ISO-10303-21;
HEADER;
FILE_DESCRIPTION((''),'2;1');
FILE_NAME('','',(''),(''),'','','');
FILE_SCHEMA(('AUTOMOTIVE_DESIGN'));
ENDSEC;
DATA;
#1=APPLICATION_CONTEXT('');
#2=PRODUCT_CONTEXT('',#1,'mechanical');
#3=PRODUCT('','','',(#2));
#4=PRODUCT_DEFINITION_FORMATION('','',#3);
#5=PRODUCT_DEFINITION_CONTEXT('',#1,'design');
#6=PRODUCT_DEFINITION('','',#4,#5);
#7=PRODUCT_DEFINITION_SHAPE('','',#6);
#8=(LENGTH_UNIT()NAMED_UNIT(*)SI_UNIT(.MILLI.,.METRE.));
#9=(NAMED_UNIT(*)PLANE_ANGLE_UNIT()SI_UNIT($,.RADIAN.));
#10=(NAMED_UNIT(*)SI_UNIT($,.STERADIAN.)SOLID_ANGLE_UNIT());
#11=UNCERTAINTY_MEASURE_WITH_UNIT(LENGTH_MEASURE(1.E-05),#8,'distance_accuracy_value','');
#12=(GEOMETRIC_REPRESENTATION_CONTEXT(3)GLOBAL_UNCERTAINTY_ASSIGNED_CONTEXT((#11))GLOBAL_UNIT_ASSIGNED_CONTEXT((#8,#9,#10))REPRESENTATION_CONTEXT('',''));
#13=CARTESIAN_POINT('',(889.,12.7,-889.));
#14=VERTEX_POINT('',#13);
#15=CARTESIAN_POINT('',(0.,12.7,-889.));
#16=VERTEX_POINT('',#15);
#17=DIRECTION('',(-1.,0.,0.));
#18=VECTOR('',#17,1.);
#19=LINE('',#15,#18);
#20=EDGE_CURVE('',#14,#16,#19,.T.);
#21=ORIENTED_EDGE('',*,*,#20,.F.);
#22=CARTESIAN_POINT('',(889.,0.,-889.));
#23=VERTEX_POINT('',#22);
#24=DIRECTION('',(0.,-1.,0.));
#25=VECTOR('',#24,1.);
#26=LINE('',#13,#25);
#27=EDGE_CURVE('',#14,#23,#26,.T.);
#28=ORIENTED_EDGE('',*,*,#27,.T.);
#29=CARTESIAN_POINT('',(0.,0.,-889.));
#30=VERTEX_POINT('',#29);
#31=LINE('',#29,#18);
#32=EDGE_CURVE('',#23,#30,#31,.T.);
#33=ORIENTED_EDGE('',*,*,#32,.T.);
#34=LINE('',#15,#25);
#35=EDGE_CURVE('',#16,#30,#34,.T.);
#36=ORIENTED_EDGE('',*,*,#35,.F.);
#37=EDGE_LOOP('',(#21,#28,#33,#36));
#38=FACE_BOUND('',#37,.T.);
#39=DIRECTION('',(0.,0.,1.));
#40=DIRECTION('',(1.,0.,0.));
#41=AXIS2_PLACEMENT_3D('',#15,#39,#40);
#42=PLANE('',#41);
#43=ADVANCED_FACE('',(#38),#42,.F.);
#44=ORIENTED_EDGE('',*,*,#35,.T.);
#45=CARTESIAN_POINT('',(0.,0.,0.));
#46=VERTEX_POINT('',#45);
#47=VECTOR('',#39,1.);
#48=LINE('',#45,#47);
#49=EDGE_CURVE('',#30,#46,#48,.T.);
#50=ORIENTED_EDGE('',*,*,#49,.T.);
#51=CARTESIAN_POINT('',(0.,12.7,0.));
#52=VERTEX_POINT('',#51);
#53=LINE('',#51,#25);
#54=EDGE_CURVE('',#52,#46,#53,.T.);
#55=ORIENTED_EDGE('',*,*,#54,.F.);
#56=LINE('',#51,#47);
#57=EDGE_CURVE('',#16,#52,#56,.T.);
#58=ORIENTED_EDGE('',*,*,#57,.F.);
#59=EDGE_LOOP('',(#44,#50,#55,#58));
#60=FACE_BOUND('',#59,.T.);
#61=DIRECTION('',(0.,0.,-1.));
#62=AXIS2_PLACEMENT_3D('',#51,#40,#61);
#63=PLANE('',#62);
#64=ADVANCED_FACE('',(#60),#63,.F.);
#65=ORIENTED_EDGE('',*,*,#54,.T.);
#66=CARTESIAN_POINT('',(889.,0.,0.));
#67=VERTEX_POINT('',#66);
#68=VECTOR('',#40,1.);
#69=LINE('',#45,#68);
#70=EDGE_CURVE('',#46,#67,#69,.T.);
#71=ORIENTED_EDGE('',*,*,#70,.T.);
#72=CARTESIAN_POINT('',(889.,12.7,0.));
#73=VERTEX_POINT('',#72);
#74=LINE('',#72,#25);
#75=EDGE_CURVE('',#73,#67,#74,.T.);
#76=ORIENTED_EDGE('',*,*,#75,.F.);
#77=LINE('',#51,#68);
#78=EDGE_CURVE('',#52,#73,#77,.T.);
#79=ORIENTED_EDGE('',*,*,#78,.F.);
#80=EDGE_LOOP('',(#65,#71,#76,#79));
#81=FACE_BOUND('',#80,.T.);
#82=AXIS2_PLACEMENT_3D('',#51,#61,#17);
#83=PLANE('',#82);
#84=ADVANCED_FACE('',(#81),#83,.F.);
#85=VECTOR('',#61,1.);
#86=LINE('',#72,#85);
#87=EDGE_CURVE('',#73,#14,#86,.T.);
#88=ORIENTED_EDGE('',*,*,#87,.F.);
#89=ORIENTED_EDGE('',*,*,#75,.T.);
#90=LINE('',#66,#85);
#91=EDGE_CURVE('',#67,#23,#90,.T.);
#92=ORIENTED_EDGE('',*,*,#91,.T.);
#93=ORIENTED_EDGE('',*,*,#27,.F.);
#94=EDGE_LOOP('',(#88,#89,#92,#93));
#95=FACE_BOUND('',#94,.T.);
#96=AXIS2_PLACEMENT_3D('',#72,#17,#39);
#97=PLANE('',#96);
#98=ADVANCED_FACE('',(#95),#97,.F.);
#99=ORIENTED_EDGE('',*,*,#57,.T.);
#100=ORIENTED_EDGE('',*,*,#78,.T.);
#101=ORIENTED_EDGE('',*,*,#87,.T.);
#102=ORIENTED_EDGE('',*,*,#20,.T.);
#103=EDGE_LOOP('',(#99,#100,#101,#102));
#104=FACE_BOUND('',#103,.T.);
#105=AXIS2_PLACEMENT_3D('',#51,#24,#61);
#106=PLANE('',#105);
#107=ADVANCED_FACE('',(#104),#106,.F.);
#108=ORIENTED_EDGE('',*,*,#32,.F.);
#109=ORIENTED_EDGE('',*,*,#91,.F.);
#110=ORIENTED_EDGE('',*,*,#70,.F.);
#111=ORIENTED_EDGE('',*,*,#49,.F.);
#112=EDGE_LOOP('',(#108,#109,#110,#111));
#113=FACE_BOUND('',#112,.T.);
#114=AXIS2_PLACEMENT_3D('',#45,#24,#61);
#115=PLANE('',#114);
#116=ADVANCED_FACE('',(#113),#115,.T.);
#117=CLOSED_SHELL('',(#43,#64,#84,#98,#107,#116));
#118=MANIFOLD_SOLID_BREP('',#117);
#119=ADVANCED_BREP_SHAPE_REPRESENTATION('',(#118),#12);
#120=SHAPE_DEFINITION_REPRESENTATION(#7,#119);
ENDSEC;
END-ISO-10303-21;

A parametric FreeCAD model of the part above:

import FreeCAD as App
import Part
import Sketcher
Q = App.Units.Quantity


def add_polygon(sketch, points):
    """Adds a closed chain of lines whose ends are joined by coincident constraints."""
    first, n = sketch.GeometryCount, len(points)
    for a, b in zip(points, points[1:] + points[:1]):
        sketch.addGeometry(Part.LineSegment(App.Vector(*a, 0), App.Vector(*b, 0)), False)
    for i in range(n):
        sketch.addConstraint(Sketcher.Constraint("Coincident", first + i, 2, first + (i + 1) % n, 1))

doc = App.newDocument("Part")
body = doc.addObject("PartDesign::Body", "Body")

sketch1 = body.newObject("Sketcher::SketchObject", "Sketch")
sketch1.AttachmentSupport = (doc.getObject("XZ_Plane"), [""])
sketch1.MapMode = "FlatFace"
add_polygon(sketch1, [(0, -889), (0, 0), (889, 0), (889, -889)])
sketch1.addConstraint(Sketcher.Constraint("Vertical", 0))
sketch1.addConstraint(Sketcher.Constraint("Horizontal", 1))
sketch1.addConstraint(Sketcher.Constraint("Vertical", 2))
sketch1.addConstraint(Sketcher.Constraint("Horizontal", 3))
sketch1.addConstraint(Sketcher.Constraint("Coincident", 0, 2, -1, 1))
sketch1.addConstraint(Sketcher.Constraint("Equal", 3, 0))
sketch1.addConstraint(Sketcher.Constraint("DistanceX", 1, 1, 1, 2, Q("35 in")))
pad1 = body.newObject("PartDesign::Pad", "Pad")
pad1.Profile = sketch1
pad1.Length = Q("0.5 in")
pad1.Reversed = True

doc.recompute()
